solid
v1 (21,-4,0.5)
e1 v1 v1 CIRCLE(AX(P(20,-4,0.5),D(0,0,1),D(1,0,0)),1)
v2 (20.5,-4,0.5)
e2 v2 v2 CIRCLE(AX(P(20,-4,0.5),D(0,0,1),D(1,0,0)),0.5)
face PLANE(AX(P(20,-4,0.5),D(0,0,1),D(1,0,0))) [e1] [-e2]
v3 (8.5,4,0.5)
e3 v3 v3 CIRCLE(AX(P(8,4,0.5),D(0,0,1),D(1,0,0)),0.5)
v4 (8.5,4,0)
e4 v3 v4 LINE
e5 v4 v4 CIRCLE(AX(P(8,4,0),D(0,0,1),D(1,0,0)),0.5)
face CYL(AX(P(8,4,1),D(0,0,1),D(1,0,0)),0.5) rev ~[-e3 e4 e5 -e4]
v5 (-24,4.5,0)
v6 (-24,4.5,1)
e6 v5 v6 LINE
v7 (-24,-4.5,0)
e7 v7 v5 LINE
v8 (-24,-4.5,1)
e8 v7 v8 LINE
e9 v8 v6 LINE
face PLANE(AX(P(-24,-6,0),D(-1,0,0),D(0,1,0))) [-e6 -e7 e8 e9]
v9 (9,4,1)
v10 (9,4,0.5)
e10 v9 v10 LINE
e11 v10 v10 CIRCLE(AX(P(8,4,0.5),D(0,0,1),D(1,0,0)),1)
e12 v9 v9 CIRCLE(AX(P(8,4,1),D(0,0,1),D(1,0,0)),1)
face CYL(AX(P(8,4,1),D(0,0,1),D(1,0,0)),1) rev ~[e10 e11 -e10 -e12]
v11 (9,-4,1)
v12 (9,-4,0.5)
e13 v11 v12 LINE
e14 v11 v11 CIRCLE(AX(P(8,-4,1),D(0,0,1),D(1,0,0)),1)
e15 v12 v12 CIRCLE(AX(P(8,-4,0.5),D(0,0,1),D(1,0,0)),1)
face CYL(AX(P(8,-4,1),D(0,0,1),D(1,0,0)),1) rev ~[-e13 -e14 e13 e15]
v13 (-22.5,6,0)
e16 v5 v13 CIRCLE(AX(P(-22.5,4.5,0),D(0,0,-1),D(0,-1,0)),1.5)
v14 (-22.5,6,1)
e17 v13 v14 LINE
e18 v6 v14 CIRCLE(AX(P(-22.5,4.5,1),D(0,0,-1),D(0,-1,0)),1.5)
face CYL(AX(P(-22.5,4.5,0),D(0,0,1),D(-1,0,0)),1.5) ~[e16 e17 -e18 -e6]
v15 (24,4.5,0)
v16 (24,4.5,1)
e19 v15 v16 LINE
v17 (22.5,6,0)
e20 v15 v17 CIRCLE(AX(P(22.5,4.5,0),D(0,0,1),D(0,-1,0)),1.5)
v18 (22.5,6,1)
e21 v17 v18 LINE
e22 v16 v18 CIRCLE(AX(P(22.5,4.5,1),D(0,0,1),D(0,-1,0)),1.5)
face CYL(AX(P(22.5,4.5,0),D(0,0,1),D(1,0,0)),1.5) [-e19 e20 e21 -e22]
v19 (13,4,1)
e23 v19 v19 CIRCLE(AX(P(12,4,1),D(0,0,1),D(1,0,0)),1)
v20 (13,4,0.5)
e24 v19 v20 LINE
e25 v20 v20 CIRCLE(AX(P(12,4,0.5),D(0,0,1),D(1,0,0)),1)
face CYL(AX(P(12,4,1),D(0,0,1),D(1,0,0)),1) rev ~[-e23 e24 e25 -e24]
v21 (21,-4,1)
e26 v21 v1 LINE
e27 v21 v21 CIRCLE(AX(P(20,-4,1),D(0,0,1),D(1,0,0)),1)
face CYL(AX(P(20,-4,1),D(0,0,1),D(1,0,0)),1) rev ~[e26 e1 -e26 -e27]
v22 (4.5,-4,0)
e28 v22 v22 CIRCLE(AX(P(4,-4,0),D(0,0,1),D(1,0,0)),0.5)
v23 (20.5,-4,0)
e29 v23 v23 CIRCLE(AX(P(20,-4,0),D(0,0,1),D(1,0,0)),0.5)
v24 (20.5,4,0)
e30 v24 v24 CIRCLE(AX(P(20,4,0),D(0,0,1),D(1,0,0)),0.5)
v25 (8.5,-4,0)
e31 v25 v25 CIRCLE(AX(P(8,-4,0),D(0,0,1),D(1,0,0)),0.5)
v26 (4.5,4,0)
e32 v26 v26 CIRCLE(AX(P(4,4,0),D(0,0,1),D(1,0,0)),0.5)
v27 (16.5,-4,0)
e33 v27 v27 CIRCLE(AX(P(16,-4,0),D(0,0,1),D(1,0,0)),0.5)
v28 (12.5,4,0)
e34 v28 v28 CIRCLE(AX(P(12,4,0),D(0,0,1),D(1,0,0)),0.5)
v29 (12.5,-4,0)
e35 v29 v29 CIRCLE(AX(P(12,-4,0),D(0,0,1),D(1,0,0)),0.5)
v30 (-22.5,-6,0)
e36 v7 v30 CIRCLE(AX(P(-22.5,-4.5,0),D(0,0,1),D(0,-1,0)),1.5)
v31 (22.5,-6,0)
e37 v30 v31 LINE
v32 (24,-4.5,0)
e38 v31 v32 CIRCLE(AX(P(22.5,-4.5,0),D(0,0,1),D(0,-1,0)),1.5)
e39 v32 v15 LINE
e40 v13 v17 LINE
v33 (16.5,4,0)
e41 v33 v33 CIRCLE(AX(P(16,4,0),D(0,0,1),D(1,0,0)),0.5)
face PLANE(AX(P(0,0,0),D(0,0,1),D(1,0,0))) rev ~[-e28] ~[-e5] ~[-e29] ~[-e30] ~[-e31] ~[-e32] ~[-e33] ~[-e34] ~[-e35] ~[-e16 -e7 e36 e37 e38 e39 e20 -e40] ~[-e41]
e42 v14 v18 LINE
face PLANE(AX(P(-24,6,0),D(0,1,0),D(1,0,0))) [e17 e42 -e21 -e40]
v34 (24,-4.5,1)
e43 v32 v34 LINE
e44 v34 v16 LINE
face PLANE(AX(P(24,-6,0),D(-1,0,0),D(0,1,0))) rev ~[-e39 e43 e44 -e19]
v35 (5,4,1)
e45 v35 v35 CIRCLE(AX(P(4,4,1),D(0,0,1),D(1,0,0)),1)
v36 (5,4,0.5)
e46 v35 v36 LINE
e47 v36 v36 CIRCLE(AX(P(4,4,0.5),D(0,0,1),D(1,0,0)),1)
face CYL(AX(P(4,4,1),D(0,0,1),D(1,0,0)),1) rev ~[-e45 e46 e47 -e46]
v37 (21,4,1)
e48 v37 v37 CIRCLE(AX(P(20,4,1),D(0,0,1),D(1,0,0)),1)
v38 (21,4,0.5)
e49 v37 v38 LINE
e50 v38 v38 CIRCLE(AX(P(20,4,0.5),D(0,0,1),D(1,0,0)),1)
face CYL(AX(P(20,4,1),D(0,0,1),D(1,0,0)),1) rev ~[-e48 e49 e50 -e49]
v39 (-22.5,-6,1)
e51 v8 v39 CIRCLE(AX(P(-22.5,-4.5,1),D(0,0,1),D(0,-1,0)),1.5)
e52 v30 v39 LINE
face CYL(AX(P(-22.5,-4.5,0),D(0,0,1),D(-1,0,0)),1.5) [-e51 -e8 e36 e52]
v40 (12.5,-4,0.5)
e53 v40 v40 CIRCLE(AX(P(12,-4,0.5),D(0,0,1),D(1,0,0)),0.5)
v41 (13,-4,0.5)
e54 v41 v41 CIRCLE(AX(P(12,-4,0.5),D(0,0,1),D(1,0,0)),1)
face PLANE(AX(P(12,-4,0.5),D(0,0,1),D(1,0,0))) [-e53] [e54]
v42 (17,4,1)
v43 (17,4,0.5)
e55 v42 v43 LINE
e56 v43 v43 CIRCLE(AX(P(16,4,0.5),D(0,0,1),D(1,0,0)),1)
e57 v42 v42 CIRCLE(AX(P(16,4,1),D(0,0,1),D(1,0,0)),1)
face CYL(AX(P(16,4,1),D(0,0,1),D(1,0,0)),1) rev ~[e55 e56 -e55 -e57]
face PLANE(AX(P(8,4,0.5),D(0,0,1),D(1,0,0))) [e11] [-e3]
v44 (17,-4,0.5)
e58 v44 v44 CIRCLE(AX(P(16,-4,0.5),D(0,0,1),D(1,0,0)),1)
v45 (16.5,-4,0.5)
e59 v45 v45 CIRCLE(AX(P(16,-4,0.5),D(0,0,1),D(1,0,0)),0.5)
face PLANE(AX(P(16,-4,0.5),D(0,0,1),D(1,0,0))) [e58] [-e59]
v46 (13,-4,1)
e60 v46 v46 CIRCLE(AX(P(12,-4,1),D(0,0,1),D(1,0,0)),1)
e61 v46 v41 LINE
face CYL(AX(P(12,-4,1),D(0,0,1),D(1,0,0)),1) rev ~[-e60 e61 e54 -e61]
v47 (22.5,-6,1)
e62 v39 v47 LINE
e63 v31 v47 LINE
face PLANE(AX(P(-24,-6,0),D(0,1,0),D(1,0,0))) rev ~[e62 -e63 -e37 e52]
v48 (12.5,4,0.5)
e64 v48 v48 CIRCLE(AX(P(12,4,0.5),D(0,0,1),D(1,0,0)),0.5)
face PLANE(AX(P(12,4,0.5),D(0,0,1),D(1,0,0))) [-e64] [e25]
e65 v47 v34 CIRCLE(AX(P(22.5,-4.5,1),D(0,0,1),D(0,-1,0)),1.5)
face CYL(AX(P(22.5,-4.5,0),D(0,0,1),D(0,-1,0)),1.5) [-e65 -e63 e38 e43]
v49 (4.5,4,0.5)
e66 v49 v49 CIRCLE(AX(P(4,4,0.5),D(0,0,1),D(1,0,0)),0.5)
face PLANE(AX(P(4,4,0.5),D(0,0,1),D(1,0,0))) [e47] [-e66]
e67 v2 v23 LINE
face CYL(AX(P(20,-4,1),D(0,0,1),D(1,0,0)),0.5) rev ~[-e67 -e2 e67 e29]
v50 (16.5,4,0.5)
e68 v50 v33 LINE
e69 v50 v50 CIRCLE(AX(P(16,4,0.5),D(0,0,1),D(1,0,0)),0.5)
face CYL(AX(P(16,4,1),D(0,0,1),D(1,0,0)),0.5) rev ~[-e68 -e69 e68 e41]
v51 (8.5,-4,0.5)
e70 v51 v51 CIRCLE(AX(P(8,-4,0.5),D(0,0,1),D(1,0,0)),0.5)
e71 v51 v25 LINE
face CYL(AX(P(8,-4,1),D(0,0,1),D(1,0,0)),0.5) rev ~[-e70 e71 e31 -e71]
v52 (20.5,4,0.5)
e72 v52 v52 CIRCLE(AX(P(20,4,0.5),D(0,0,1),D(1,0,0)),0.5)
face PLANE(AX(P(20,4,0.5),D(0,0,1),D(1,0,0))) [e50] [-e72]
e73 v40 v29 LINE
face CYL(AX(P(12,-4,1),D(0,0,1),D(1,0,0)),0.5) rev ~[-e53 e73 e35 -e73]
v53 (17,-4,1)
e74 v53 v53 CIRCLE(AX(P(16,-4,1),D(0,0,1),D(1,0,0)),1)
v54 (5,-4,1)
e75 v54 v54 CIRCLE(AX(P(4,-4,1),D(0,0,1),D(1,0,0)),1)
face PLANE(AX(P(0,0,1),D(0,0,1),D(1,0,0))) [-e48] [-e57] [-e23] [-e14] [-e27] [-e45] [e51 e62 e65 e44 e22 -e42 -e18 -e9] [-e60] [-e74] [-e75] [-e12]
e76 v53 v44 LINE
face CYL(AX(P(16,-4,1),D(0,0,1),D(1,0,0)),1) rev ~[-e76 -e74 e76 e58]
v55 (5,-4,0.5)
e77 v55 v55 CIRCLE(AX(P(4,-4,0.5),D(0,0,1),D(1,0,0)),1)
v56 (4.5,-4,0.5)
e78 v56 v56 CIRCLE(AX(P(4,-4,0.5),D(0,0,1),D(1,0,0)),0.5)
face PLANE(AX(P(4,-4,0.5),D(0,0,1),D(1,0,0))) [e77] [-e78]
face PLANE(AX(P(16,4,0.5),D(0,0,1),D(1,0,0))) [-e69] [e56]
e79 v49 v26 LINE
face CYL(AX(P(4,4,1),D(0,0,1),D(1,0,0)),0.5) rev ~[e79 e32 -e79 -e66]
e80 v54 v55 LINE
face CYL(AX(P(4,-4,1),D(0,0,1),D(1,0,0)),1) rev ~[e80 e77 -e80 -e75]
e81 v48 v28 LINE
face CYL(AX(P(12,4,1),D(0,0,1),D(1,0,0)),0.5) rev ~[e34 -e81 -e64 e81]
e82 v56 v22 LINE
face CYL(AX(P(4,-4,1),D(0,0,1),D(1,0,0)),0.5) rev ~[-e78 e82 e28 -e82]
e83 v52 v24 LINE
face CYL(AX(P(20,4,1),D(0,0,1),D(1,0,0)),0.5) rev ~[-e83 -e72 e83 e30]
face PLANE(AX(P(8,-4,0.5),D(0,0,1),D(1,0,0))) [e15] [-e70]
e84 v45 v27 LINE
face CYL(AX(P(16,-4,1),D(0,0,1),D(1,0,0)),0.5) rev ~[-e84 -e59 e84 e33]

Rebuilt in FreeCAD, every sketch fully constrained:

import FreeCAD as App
import Part
import Sketcher

V = App.Vector


def edges_at(feature, points):
    """Names of the edges that pass closest to the given points."""
    edges = feature.Shape.Edges
    near = lambda p: min(range(len(edges)), key=lambda i: edges[i].distToShape(Part.Vertex(*p))[0])
    return sorted({f"Edge{near(p) + 1}" for p in points})

doc = App.newDocument("Part")
body = doc.addObject("PartDesign::Body", "Body")

sketch1 = body.newObject("Sketcher::SketchObject", "Sketch")
sketch1.AttachmentSupport = (doc.getObject("XY_Plane"), [""])
sketch1.MapMode = "FlatFace"
sketch1.addGeometry([
    Part.LineSegment(V(-24, 6, 0), V(-24, -6, 0)),
    Part.LineSegment(V(-24, -6, 0), V(24, -6, 0)),
    Part.LineSegment(V(24, -6, 0), V(24, 6, 0)),
    Part.LineSegment(V(24, 6, 0), V(-24, 6, 0)),
], False)
sketch1.addConstraint([
    Sketcher.Constraint("Coincident", 0, 2, 1, 1),
    Sketcher.Constraint("Coincident", 1, 2, 2, 1),
    Sketcher.Constraint("Coincident", 2, 2, 3, 1),
    Sketcher.Constraint("Coincident", 3, 2, 0, 1),
    Sketcher.Constraint("Vertical", 0),
    Sketcher.Constraint("Horizontal", 1),
    Sketcher.Constraint("Vertical", 2),
    Sketcher.Constraint("Horizontal", 3),
    Sketcher.Constraint("Symmetric", 0, 2, 2, 2, -1, 1),
    Sketcher.Constraint("DistanceX", 1, 1, 1, 2, 48.0),
    Sketcher.Constraint("DistanceY", 0, 2, 0, 1, 12.0),
])
pad1 = body.newObject("PartDesign::Pad", "Pad")
pad1.Profile = sketch1
pad1.Length = 1
doc.recompute()

fillet = body.newObject("PartDesign::Fillet", "Fillet")
fillet.Base = (pad1, edges_at(pad1, [
    (24, -6, 0.5),
    (24, 6, 0.5),
    (-24, 6, 0.5),
    (-24, -6, 0.5),
]))
fillet.Radius = 1.5

sketch2 = body.newObject("Sketcher::SketchObject", "Sketch001")
sketch2.AttachmentSupport = (doc.getObject("XY_Plane"), [""])
sketch2.MapMode = "FlatFace"
sketch2.AttachmentOffset = App.Placement(V(0, 0, 1), App.Rotation())
sketch2.addGeometry([
    Part.Circle(V(4, 4, 0), V(0, 0, 1), 0.5),
    Part.Circle(V(8, 4, 0), V(0, 0, 1), 0.5),
    Part.Circle(V(12, 4, 0), V(0, 0, 1), 0.5),
    Part.Circle(V(16, 4, 0), V(0, 0, 1), 0.5),
    Part.Circle(V(20, 4, 0), V(0, 0, 1), 0.5),
    Part.Circle(V(20, -4, 0), V(0, 0, 1), 0.5),
    Part.Circle(V(16, -4, 0), V(0, 0, 1), 0.5),
    Part.Circle(V(12, -4, 0), V(0, 0, 1), 0.5),
    Part.Circle(V(8, -4, 0), V(0, 0, 1), 0.5),
    Part.Circle(V(4, -4, 0), V(0, 0, 1), 0.5),
], False)
sketch2.addConstraint([
    Sketcher.Constraint("Equal", 0, 1),
    Sketcher.Constraint("Equal", 1, 2),
    Sketcher.Constraint("Equal", 2, 3),
    Sketcher.Constraint("Equal", 3, 4),
    Sketcher.Constraint("Equal", 4, 5),
    Sketcher.Constraint("Equal", 5, 6),
    Sketcher.Constraint("Equal", 6, 7),
    Sketcher.Constraint("Equal", 7, 8),
    Sketcher.Constraint("Equal", 8, 9),
    Sketcher.Constraint("Symmetric", 4, 3, 5, 3, -1),
    Sketcher.Constraint("Symmetric", 3, 3, 6, 3, -1),
    Sketcher.Constraint("Symmetric", 2, 3, 7, 3, -1),
    Sketcher.Constraint("Symmetric", 1, 3, 8, 3, -1),
    Sketcher.Constraint("Symmetric", 0, 3, 9, 3, -1),
    Sketcher.Constraint("Horizontal", 0, 3, 1, 3),
    Sketcher.Constraint("Horizontal", 1, 3, 2, 3),
    Sketcher.Constraint("Horizontal", 2, 3, 3, 3),
    Sketcher.Constraint("Horizontal", 3, 3, 4, 3),
    Sketcher.Constraint("Diameter", 0, 1.0),
    Sketcher.Constraint("DistanceX", -1, 1, 0, 3, 4.0),
    Sketcher.Constraint("DistanceY", -1, 1, 0, 3, 4.0),
    Sketcher.Constraint("DistanceX", -1, 1, 1, 3, 8.0),
    Sketcher.Constraint("DistanceX", -1, 1, 2, 3, 12.0),
    Sketcher.Constraint("DistanceX", -1, 1, 3, 3, 16.0),
    Sketcher.Constraint("DistanceX", -1, 1, 4, 3, 20.0),
])
pocket1 = body.newObject("PartDesign::Pocket", "Pocket")
pocket1.Profile = sketch2
pocket1.Length = 1

sketch3 = body.newObject("Sketcher::SketchObject", "Sketch002")
sketch3.AttachmentSupport = (doc.getObject("XY_Plane"), [""])
sketch3.MapMode = "FlatFace"
sketch3.AttachmentOffset = App.Placement(V(0, 0, 1), App.Rotation())
sketch3.addGeometry([
    Part.Circle(V(4, 4, 0), V(0, 0, 1), 1),
    Part.Circle(V(8, 4, 0), V(0, 0, 1), 1),
    Part.Circle(V(12, 4, 0), V(0, 0, 1), 1),
    Part.Circle(V(16, 4, 0), V(0, 0, 1), 1),
    Part.Circle(V(20, 4, 0), V(0, 0, 1), 1),
    Part.Circle(V(20, -4, 0), V(0, 0, 1), 1),
    Part.Circle(V(16, -4, 0), V(0, 0, 1), 1),
    Part.Circle(V(12, -4, 0), V(0, 0, 1), 1),
    Part.Circle(V(8, -4, 0), V(0, 0, 1), 1),
    Part.Circle(V(4, -4, 0), V(0, 0, 1), 1),
], False)
sketch3.addConstraint([
    Sketcher.Constraint("Equal", 0, 1),
    Sketcher.Constraint("Equal", 1, 2),
    Sketcher.Constraint("Equal", 2, 3),
    Sketcher.Constraint("Equal", 3, 4),
    Sketcher.Constraint("Equal", 4, 5),
    Sketcher.Constraint("Equal", 5, 6),
    Sketcher.Constraint("Equal", 6, 7),
    Sketcher.Constraint("Equal", 7, 8),
    Sketcher.Constraint("Equal", 8, 9),
    Sketcher.Constraint("Symmetric", 4, 3, 5, 3, -1),
    Sketcher.Constraint("Symmetric", 3, 3, 6, 3, -1),
    Sketcher.Constraint("Symmetric", 2, 3, 7, 3, -1),
    Sketcher.Constraint("Symmetric", 1, 3, 8, 3, -1),
    Sketcher.Constraint("Symmetric", 0, 3, 9, 3, -1),
    Sketcher.Constraint("Horizontal", 0, 3, 1, 3),
    Sketcher.Constraint("Horizontal", 1, 3, 2, 3),
    Sketcher.Constraint("Horizontal", 2, 3, 3, 3),
    Sketcher.Constraint("Horizontal", 3, 3, 4, 3),
    Sketcher.Constraint("Diameter", 0, 2.0),
    Sketcher.Constraint("DistanceX", -1, 1, 0, 3, 4.0),
    Sketcher.Constraint("DistanceY", -1, 1, 0, 3, 4.0),
    Sketcher.Constraint("DistanceX", -1, 1, 1, 3, 8.0),
    Sketcher.Constraint("DistanceX", -1, 1, 2, 3, 12.0),
    Sketcher.Constraint("DistanceX", -1, 1, 3, 3, 16.0),
    Sketcher.Constraint("DistanceX", -1, 1, 4, 3, 20.0),
])
pocket2 = body.newObject("PartDesign::Pocket", "Pocket001")
pocket2.Profile = sketch3
pocket2.Length = 0.5

doc.recompute()
